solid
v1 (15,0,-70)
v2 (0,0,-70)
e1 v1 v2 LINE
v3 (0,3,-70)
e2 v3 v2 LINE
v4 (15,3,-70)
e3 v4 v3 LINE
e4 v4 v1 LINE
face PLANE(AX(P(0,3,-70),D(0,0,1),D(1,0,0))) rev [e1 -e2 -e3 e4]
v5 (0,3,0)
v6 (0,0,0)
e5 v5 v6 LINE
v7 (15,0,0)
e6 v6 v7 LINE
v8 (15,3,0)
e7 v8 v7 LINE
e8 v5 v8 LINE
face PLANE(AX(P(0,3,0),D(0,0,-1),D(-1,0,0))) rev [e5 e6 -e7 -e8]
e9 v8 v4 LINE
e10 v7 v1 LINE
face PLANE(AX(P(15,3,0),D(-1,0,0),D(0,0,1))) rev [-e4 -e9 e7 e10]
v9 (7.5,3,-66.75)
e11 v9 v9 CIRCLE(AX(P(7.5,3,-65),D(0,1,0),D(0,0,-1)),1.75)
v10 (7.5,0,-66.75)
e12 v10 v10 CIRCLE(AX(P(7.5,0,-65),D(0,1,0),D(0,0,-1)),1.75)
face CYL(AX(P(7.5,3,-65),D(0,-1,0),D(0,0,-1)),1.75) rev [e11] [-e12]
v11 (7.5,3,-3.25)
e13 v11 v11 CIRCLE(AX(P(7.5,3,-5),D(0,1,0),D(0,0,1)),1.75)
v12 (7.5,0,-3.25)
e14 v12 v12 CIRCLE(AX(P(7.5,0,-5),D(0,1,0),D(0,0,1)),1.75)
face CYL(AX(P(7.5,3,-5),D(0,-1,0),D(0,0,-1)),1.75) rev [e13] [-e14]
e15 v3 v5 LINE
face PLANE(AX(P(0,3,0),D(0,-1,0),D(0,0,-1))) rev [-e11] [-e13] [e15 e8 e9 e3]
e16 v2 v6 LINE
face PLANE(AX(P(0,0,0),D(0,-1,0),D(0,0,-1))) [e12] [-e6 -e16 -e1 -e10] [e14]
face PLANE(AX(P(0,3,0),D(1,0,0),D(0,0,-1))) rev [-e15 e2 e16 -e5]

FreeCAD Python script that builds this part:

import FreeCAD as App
import Part
import Sketcher


def add_polygon(sketch, points):
    """Adds a closed chain of lines whose ends are joined by coincident constraints."""
    first, n = sketch.GeometryCount, len(points)
    for a, b in zip(points, points[1:] + points[:1]):
        sketch.addGeometry(Part.LineSegment(App.Vector(*a, 0), App.Vector(*b, 0)), False)
    for i in range(n):
        sketch.addConstraint(Sketcher.Constraint("Coincident", first + i, 2, first + (i + 1) % n, 1))

doc = App.newDocument("Part")
body = doc.addObject("PartDesign::Body", "Body")

# Sketch on XZ plane
sketch1 = body.newObject("Sketcher::SketchObject", "Sketch")
sketch1.AttachmentSupport = (doc.getObject("XZ_Plane"), [""])
sketch1.MapMode = "FlatFace"
add_polygon(sketch1, [(0, -70), (0, 0), (15, 0), (15, -70)])  # lines 0-3
sketch1.addGeometry(Part.Circle(App.Vector(7.5, -5, 0), App.Vector(0, 0, 1), 1.75), False)  # 4
sketch1.addGeometry(Part.Circle(App.Vector(7.5, -65, 0), App.Vector(0, 0, 1), 1.75), False)  # 5
sketch1.addConstraint(Sketcher.Constraint("Vertical", 0))
sketch1.addConstraint(Sketcher.Constraint("Horizontal", 1))
sketch1.addConstraint(Sketcher.Constraint("Vertical", 2))
sketch1.addConstraint(Sketcher.Constraint("Horizontal", 3))
sketch1.addConstraint(Sketcher.Constraint("Coincident", 0, 2, -1, 1))
sketch1.addConstraint(Sketcher.Constraint("Equal", 4, 5))
sketch1.addConstraint(Sketcher.Constraint("Vertical", 4, 3, 5, 3))
sketch1.addConstraint(Sketcher.Constraint("Diameter", 4, 3.5))
sketch1.addConstraint(Sketcher.Constraint("DistanceX", 1, 1, 1, 2, 15.0))
sketch1.addConstraint(Sketcher.Constraint("DistanceY", 0, 1, 0, 2, 70.0))
sketch1.addConstraint(Sketcher.Constraint("DistanceY", 4, 3, -1, 1, 5.0))
sketch1.addConstraint(Sketcher.Constraint("DistanceY", 5, 3, -1, 1, 65.0))
sketch1.addConstraint(Sketcher.Constraint("DistanceX", -1, 1, 4, 3, 7.5))
pad1 = body.newObject("PartDesign::Pad", "Pad")
pad1.Profile = sketch1
pad1.Length = 3
pad1.Reversed = True

doc.recompute()
